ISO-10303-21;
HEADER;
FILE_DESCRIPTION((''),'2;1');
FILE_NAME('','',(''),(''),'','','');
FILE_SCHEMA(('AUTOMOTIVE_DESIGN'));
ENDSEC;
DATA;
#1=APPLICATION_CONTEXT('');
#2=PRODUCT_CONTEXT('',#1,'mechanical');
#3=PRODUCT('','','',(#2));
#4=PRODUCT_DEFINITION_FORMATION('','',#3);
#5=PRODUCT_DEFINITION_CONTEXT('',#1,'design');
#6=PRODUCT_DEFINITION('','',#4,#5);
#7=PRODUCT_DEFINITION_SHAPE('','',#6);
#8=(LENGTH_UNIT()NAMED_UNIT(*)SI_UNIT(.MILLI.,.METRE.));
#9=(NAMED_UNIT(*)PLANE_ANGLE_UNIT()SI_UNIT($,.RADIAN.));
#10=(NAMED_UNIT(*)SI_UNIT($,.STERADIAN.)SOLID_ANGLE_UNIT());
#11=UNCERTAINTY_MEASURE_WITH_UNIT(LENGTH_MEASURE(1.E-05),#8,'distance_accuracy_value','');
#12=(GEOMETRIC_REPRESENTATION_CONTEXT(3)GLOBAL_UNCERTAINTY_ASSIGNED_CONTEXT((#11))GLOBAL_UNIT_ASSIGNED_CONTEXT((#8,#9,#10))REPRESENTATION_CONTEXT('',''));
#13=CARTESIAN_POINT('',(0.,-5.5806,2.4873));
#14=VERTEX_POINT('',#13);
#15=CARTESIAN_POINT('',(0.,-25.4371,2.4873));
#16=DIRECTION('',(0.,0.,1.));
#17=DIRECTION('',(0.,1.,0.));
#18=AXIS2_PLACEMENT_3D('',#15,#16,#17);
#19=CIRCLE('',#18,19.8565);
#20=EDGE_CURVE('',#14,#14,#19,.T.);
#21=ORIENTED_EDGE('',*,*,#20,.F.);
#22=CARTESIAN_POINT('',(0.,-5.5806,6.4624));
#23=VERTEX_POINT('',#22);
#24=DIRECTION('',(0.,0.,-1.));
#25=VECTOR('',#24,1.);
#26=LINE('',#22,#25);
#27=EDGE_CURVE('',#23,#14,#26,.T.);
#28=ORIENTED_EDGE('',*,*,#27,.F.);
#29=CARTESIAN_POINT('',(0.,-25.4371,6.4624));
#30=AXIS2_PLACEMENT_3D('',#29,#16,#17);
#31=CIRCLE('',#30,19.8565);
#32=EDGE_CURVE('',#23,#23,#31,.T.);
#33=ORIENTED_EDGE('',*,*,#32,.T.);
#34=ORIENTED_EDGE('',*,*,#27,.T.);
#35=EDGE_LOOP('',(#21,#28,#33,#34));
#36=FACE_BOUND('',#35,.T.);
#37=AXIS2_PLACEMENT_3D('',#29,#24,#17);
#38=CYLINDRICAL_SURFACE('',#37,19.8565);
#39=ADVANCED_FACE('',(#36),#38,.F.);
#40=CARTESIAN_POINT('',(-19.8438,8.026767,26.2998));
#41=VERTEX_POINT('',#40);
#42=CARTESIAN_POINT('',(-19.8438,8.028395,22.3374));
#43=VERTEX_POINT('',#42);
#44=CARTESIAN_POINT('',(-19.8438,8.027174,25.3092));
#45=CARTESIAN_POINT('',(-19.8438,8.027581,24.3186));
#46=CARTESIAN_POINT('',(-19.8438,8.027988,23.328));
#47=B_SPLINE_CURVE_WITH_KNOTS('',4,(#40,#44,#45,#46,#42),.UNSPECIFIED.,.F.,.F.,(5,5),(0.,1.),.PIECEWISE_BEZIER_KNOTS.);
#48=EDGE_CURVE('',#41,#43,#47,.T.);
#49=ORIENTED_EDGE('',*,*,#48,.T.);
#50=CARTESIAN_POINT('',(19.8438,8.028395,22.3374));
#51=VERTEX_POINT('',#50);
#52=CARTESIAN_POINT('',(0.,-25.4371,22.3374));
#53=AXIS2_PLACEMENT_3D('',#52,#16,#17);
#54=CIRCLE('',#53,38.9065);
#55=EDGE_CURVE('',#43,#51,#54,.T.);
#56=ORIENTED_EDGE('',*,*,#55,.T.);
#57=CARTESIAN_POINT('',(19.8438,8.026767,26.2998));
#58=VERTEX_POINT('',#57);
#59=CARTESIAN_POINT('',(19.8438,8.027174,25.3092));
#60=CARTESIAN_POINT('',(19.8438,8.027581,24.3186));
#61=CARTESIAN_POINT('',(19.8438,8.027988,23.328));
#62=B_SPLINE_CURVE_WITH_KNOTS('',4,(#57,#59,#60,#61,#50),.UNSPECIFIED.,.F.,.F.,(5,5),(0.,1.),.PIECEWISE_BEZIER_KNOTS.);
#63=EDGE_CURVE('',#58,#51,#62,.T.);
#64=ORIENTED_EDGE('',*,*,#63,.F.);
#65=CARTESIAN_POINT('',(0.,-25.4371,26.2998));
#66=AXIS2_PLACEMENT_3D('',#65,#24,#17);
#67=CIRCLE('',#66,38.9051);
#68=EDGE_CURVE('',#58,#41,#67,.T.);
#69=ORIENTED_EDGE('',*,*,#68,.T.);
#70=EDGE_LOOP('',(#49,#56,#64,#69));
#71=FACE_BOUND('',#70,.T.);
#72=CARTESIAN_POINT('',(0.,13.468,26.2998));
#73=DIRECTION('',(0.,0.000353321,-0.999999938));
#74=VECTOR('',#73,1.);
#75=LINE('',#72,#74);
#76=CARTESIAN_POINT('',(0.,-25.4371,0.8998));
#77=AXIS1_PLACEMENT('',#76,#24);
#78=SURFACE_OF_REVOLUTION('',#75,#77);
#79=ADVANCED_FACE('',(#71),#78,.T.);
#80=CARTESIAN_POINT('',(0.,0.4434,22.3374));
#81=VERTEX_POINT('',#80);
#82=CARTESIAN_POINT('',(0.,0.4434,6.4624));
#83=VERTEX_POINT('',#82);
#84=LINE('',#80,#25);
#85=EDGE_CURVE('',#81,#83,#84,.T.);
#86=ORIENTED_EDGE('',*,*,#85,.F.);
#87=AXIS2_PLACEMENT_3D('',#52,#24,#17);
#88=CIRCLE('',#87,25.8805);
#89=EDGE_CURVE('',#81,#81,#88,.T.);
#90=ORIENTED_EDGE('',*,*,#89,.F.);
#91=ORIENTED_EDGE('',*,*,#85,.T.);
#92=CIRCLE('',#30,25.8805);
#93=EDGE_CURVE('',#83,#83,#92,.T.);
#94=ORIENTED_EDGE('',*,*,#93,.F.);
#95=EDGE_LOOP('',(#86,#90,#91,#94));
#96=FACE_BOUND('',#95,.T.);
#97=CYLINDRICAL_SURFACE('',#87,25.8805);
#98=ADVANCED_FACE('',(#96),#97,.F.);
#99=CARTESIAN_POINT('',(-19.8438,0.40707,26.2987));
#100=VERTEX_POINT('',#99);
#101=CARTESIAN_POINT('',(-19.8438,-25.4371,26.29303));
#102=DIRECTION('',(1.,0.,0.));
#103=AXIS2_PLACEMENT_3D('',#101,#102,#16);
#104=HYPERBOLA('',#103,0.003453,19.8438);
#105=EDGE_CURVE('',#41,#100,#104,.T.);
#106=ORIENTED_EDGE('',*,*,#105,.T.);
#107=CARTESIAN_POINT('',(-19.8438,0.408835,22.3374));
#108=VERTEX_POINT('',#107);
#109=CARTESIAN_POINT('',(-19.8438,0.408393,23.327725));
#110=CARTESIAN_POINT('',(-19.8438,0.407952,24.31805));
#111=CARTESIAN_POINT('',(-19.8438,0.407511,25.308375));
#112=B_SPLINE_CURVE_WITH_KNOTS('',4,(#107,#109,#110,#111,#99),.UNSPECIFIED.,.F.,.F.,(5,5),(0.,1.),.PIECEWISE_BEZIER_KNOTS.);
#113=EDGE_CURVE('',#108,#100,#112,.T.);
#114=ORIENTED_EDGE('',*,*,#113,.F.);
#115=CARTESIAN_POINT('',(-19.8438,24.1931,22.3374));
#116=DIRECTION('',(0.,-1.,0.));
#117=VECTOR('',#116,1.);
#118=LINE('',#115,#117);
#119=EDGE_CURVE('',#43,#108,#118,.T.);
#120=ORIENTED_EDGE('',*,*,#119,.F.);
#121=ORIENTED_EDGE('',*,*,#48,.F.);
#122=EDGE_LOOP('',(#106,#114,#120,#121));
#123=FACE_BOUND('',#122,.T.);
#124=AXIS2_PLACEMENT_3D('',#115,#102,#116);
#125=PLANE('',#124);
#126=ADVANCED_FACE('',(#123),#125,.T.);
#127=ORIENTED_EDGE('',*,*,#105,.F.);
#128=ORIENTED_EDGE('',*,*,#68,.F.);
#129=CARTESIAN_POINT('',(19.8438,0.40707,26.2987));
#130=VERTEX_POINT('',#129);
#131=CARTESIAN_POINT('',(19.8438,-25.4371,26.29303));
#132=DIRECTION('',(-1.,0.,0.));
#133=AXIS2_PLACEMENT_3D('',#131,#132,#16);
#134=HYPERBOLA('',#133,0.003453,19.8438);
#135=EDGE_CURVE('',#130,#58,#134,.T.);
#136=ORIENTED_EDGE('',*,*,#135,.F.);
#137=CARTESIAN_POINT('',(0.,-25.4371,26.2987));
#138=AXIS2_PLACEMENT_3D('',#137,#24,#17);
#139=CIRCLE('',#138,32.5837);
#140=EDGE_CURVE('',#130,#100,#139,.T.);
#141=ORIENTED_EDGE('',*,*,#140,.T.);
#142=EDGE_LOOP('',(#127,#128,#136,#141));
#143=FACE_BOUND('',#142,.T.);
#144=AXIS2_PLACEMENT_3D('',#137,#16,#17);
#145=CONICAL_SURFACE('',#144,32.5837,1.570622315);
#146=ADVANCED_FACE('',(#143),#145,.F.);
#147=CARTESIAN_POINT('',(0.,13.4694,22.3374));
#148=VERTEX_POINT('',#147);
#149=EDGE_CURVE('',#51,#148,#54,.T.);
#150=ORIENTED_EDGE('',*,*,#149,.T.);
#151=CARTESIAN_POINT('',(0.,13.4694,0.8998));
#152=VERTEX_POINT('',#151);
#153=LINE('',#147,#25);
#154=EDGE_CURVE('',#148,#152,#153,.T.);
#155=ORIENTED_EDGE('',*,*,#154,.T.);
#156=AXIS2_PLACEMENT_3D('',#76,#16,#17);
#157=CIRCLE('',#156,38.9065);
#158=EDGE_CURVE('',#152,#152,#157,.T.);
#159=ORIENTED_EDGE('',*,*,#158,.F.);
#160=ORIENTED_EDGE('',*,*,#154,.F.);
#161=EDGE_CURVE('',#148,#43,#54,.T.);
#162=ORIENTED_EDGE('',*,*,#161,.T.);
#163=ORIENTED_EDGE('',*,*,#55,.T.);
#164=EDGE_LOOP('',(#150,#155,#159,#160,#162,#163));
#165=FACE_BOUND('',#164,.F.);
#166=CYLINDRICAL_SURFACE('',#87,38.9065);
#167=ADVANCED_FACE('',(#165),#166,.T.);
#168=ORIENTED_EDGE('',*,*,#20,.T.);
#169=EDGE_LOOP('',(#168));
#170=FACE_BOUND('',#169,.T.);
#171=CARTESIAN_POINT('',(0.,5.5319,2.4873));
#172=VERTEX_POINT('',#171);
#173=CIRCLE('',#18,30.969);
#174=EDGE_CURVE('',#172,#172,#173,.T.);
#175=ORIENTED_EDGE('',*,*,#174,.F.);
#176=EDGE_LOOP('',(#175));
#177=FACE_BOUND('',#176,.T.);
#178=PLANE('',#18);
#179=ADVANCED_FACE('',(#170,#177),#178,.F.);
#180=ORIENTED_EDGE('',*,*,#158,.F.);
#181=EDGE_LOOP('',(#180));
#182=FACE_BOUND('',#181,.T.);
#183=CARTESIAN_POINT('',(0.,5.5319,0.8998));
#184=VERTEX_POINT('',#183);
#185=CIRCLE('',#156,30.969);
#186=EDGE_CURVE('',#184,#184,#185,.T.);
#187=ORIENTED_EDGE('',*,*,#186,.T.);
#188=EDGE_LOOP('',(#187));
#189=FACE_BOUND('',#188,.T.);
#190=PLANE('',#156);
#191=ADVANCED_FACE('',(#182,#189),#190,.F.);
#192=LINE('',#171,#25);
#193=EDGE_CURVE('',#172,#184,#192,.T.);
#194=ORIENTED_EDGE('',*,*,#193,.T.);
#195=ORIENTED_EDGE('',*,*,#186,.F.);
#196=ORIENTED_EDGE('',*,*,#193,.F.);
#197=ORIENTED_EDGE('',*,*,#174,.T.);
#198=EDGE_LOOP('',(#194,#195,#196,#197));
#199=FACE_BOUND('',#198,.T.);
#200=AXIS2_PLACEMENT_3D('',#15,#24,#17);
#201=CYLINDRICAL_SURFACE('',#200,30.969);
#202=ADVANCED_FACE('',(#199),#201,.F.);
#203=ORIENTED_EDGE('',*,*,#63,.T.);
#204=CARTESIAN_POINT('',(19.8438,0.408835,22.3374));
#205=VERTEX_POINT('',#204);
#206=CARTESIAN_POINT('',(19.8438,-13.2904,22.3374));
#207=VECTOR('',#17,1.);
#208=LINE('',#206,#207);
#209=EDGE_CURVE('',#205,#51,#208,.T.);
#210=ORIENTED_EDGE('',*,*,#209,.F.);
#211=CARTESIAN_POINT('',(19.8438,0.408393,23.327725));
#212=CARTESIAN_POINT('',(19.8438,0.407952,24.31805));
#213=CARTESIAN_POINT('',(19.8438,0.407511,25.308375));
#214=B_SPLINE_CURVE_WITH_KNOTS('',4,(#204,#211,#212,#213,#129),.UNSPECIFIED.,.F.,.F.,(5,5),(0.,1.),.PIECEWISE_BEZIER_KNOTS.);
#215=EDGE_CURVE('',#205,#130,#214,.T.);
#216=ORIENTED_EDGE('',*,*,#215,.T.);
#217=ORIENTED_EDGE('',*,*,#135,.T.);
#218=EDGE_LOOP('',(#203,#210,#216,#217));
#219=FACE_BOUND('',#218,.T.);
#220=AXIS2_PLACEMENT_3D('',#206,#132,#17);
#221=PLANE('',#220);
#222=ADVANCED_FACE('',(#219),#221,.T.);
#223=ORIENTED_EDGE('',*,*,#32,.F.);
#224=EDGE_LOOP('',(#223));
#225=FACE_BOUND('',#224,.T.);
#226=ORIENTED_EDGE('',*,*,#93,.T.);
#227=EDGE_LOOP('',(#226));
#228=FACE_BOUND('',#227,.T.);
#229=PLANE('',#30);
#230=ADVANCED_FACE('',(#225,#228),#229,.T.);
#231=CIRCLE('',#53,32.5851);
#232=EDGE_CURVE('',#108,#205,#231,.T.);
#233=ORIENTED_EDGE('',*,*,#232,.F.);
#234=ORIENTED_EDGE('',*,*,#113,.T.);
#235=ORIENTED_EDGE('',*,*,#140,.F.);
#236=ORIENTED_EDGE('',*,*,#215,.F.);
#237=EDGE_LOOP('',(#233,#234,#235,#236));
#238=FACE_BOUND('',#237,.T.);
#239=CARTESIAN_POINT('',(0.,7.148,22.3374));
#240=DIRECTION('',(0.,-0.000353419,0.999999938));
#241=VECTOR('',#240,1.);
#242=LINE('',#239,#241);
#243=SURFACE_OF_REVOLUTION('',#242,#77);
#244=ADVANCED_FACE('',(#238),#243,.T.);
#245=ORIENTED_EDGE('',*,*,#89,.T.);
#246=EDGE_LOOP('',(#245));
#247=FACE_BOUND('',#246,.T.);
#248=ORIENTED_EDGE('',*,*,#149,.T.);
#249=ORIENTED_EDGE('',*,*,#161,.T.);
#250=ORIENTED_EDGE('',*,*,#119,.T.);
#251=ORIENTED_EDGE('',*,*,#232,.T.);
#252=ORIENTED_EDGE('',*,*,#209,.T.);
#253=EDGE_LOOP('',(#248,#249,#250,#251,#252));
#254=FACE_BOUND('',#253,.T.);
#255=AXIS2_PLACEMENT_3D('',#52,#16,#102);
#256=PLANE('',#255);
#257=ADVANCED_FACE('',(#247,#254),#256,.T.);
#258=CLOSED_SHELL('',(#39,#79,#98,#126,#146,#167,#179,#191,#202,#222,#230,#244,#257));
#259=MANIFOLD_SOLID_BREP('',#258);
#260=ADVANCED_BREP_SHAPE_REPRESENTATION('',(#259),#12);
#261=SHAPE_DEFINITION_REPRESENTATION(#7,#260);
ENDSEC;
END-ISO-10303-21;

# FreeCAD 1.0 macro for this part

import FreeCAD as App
import Part
import Sketcher
Q = App.Units.Quantity


def add_polygon(sketch, points):
    """Adds a closed chain of lines whose ends are joined by coincident constraints."""
    first, n = sketch.GeometryCount, len(points)
    for a, b in zip(points, points[1:] + points[:1]):
        sketch.addGeometry(Part.LineSegment(App.Vector(*a, 0), App.Vector(*b, 0)), False)
    for i in range(n):
        sketch.addConstraint(Sketcher.Constraint("Coincident", first + i, 2, first + (i + 1) % n, 1))

doc = App.newDocument("Part")
body = doc.addObject("PartDesign::Body", "Body")

# Sketch on YZ plane
sketch1 = doc.addObject("Sketcher::SketchObject", "Sketch")
body.addObject(sketch1)
sketch1.AttachmentSupport = (doc.YZ_Plane, [""])
sketch1.MapMode = "FlatFace"
add_polygon(sketch1, [(13.5, 22.3), (0.4, 22.3), (0.4, 6.5), (-5.6, 6.5), (-5.6, 2.5), (5.5, 2.5), (5.5, 0.9), (13.5, 0.9)])  # lines 0-7
sketch1.addGeometry(Part.LineSegment(App.Vector(-25.4, 0.9, 0), App.Vector(-25.4, 22.3, 0)), True)  # axis
sketch1.addConstraint([
    Sketcher.Constraint("Horizontal", 0),
    Sketcher.Constraint("Vertical", 1),
    Sketcher.Constraint("Horizontal", 2),
    Sketcher.Constraint("Vertical", 3),
    Sketcher.Constraint("Horizontal", 4),
    Sketcher.Constraint("Vertical", 5),
    Sketcher.Constraint("Horizontal", 6),
    Sketcher.Constraint("Vertical", 7),
    Sketcher.Constraint("Vertical", 8),
    Sketcher.Constraint("Horizontal", 6, 2, 8, 1),
    Sketcher.Constraint("Horizontal", 7, 2, 8, 2),
    Sketcher.Constraint("DistanceX", 6, 1, 6, 2, Q("0.3125 in")),
    Sketcher.Constraint("DistanceY", 5, 2, 5, 1, Q("0.0625 in")),
    Sketcher.Constraint("DistanceY", 7, 1, 7, 2, Q("0.844 in")),
    Sketcher.Constraint("DistanceX", 3, 2, 6, 2, Q("0.75 in")),
    Sketcher.Constraint("DistanceY", 5, 2, 1, 2, Q("0.219 in")),
    Sketcher.Constraint("DistanceX", 0, 2, 0, 1, 13.026),
    Sketcher.Constraint("DistanceX", 2, 2, -1, 1, Q("0.2197 in")),
    Sketcher.Constraint("DistanceY", -1, 1, 0, 2, 22.3374),
    Sketcher.Constraint("DistanceX", 8, 1, -1, 1, 25.437),
])
revolution = doc.addObject("PartDesign::Revolution", "Revolution")
body.addObject(revolution)
revolution.Profile = sketch1
revolution.ReferenceAxis = (sketch1, ["Axis0"])
revolution.Angle = 360

# Sketch on YZ plane
sketch2 = doc.addObject("Sketcher::SketchObject", "Sketch001")
body.addObject(sketch2)
sketch2.AttachmentSupport = (doc.YZ_Plane, [""])
sketch2.MapMode = "FlatFace"
add_polygon(sketch2, [(7.1, 26.3), (7.1, 22.3), (13.5, 22.3), (13.5, 26.3)])  # lines 0-3
sketch2.addGeometry(Part.LineSegment(App.Vector(-25.4, 26.3, 0), App.Vector(-25.4, 22.3, 0)), True)  # axis
sketch2.addConstraint([
    Sketcher.Constraint("Horizontal", 1),
    Sketcher.Constraint("Vertical", 4),
    Sketcher.Constraint("Parallel", 0, 2),
    Sketcher.Constraint("Perpendicular", 2, 3),
    Sketcher.Constraint("Horizontal", 2, 2, 4, 1),
    Sketcher.Constraint("Horizontal", 1, 2, 4, 2),
    Sketcher.Constraint("DistanceY", 4, 2, 4, 1, Q("0.156 in")),
    Sketcher.Constraint("Angle", 0, Q("-89.9798 deg")),
    Sketcher.Constraint("DistanceX", 4, 1, 1, 2, 38.9065),
    Sketcher.Constraint("DistanceX", 1, 1, 1, 2, 6.3214),
    Sketcher.Constraint("DistanceX", -1, 1, 1, 2, Q("0.5303 in")),
    Sketcher.Constraint("DistanceY", -1, 1, 0, 2, 22.3374),
])
revolution2 = doc.addObject("PartDesign::Revolution", "Revolution001")
body.addObject(revolution2)
revolution2.Profile = sketch2
revolution2.ReferenceAxis = (sketch2, ["Axis0"])
revolution2.Angle = 360

# Sketch on XY plane
sketch3 = doc.addObject("Sketcher::SketchObject", "Sketch002")
body.addObject(sketch3)
sketch3.AttachmentSupport = (doc.XY_Plane, [""])
sketch3.MapMode = "FlatFace"
sketch3.AttachmentOffset = App.Placement(App.Vector(0, 0, 22.3374), App.Rotation())
add_polygon(sketch3, [(20, 24), (-20, 24), (-20, -13), (20, -13)])  # lines 0-3
sketch3.addConstraint([
    Sketcher.Constraint("Horizontal", 0),
    Sketcher.Constraint("Vertical", 1),
    Sketcher.Constraint("Horizontal", 2),
    Sketcher.Constraint("Vertical", 3),
    Sketcher.Constraint("DistanceX", 0, 2, 0, 1, Q("1.5625 in")),
    Sketcher.Constraint("DistanceX", 0, 2, -1, 1, Q("0.781252 in")),
    Sketcher.Constraint("DistanceY", 1, 2, 1, 1, 37.4835),
    Sketcher.Constraint("DistanceY", -1, 1, 0, 2, 24.193),
])
pocket1 = doc.addObject("PartDesign::Pocket", "Pocket")
body.addObject(pocket1)
pocket1.Profile = sketch3
pocket1.Length = Q("0.625 in")
pocket1.Reversed = True

doc.recompute()
